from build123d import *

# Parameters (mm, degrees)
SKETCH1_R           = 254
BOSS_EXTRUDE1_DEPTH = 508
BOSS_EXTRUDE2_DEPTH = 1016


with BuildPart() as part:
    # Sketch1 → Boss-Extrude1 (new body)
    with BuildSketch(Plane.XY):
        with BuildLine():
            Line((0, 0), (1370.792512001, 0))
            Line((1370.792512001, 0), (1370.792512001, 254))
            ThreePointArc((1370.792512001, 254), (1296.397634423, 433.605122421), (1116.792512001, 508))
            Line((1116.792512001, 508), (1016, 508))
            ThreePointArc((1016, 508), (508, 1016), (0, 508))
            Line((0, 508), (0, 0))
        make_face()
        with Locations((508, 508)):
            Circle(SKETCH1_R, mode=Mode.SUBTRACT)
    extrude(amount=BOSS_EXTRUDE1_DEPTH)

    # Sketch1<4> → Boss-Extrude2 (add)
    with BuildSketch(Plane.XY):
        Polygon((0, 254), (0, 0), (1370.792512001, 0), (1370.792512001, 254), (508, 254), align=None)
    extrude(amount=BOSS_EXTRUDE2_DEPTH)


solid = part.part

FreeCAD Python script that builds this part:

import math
import FreeCAD as App
import Part
import Sketcher
Q = App.Units.Quantity


def add_polygon(sketch, points):
    """Adds a closed chain of lines whose ends are joined by coincident constraints."""
    first, n = sketch.GeometryCount, len(points)
    for a, b in zip(points, points[1:] + points[:1]):
        sketch.addGeometry(Part.LineSegment(App.Vector(*a, 0), App.Vector(*b, 0)), False)
    for i in range(n):
        sketch.addConstraint(Sketcher.Constraint("Coincident", first + i, 2, first + (i + 1) % n, 1))

doc = App.newDocument("Part")
body = doc.addObject("PartDesign::Body", "Body")

sketch1 = body.newObject("Sketcher::SketchObject", "Sketch")
sketch1.AttachmentSupport = (doc.getObject("XY_Plane"), [""])
sketch1.MapMode = "FlatFace"
sketch1.addGeometry(Part.LineSegment(App.Vector(0, 0, 0), App.Vector(1371, 0, 0)), False)
sketch1.addGeometry(Part.LineSegment(App.Vector(1371, 0, 0), App.Vector(1371, 254, 0)), False)
sketch1.addGeometry(Part.ArcOfCircle(Part.Circle(App.Vector(1117, 254, 0), App.Vector(0, 0, 1), 254), math.radians(0), math.radians(90)), False)
sketch1.addGeometry(Part.LineSegment(App.Vector(1117, 508, 0), App.Vector(1016, 508, 0)), False)
sketch1.addGeometry(Part.ArcOfCircle(Part.Circle(App.Vector(508, 508, 0), App.Vector(0, 0, 1), 508), math.radians(0), math.radians(180)), False)
sketch1.addGeometry(Part.LineSegment(App.Vector(0, 508, 0), App.Vector(0, 0, 0)), False)
sketch1.addGeometry(Part.Circle(App.Vector(508, 508, 0), App.Vector(0, 0, 1), 254), False)
sketch1.addConstraint(Sketcher.Constraint("Coincident", 0, 2, 1, 1))
sketch1.addConstraint(Sketcher.Constraint("Tangent", 1, 2, 2, 1))
sketch1.addConstraint(Sketcher.Constraint("Tangent", 2, 2, 3, 1))
sketch1.addConstraint(Sketcher.Constraint("Coincident", 3, 2, 4, 1))
sketch1.addConstraint(Sketcher.Constraint("Tangent", 4, 2, 5, 1))
sketch1.addConstraint(Sketcher.Constraint("Coincident", 5, 2, 0, 1))
sketch1.addConstraint(Sketcher.Constraint("Horizontal", 0))
sketch1.addConstraint(Sketcher.Constraint("Vertical", 1))
sketch1.addConstraint(Sketcher.Constraint("Horizontal", 3))
sketch1.addConstraint(Sketcher.Constraint("Vertical", 5))
sketch1.addConstraint(Sketcher.Constraint("Coincident", 5, 2, -1, 1))
sketch1.addConstraint(Sketcher.Constraint("Coincident", 6, 3, 4, 3))
sketch1.addConstraint(Sketcher.Constraint("Equal", 2, 6))
sketch1.addConstraint(Sketcher.Constraint("Horizontal", 6, 3, 2, 2))
sketch1.addConstraint(Sketcher.Constraint("Diameter", 6, Q("20 in")))
sketch1.addConstraint(Sketcher.Constraint("Radius", 4, Q("20 in")))
sketch1.addConstraint(Sketcher.Constraint("DistanceY", 1, 1, 1, 2, Q("10 in")))
sketch1.addConstraint(Sketcher.Constraint("DistanceX", 0, 1, 0, 2, 1370.792512))
pad1 = body.newObject("PartDesign::Pad", "Pad")
pad1.Profile = sketch1
pad1.Length = Q("20 in")

sketch2 = body.newObject("Sketcher::SketchObject", "Sketch001")
sketch2.AttachmentSupport = (doc.getObject("XY_Plane"), [""])
sketch2.MapMode = "FlatFace"
add_polygon(sketch2, [(0, 254), (0, 0), (1371, 0), (1371, 254)])
sketch2.addConstraint(Sketcher.Constraint("Vertical", 0))
sketch2.addConstraint(Sketcher.Constraint("Horizontal", 1))
sketch2.addConstraint(Sketcher.Constraint("Vertical", 2))
sketch2.addConstraint(Sketcher.Constraint("Horizontal", 3))
sketch2.addConstraint(Sketcher.Constraint("Coincident", 0, 2, -1, 1))
sketch2.addConstraint(Sketcher.Constraint("DistanceY", 0, 2, 0, 1, Q("10 in")))
sketch2.addConstraint(Sketcher.Constraint("DistanceX", 1, 1, 1, 2, 1370.792512))
pad2 = body.newObject("PartDesign::Pad", "Pad001")
pad2.Profile = sketch2
pad2.Length = Q("40 in")

doc.recompute()
